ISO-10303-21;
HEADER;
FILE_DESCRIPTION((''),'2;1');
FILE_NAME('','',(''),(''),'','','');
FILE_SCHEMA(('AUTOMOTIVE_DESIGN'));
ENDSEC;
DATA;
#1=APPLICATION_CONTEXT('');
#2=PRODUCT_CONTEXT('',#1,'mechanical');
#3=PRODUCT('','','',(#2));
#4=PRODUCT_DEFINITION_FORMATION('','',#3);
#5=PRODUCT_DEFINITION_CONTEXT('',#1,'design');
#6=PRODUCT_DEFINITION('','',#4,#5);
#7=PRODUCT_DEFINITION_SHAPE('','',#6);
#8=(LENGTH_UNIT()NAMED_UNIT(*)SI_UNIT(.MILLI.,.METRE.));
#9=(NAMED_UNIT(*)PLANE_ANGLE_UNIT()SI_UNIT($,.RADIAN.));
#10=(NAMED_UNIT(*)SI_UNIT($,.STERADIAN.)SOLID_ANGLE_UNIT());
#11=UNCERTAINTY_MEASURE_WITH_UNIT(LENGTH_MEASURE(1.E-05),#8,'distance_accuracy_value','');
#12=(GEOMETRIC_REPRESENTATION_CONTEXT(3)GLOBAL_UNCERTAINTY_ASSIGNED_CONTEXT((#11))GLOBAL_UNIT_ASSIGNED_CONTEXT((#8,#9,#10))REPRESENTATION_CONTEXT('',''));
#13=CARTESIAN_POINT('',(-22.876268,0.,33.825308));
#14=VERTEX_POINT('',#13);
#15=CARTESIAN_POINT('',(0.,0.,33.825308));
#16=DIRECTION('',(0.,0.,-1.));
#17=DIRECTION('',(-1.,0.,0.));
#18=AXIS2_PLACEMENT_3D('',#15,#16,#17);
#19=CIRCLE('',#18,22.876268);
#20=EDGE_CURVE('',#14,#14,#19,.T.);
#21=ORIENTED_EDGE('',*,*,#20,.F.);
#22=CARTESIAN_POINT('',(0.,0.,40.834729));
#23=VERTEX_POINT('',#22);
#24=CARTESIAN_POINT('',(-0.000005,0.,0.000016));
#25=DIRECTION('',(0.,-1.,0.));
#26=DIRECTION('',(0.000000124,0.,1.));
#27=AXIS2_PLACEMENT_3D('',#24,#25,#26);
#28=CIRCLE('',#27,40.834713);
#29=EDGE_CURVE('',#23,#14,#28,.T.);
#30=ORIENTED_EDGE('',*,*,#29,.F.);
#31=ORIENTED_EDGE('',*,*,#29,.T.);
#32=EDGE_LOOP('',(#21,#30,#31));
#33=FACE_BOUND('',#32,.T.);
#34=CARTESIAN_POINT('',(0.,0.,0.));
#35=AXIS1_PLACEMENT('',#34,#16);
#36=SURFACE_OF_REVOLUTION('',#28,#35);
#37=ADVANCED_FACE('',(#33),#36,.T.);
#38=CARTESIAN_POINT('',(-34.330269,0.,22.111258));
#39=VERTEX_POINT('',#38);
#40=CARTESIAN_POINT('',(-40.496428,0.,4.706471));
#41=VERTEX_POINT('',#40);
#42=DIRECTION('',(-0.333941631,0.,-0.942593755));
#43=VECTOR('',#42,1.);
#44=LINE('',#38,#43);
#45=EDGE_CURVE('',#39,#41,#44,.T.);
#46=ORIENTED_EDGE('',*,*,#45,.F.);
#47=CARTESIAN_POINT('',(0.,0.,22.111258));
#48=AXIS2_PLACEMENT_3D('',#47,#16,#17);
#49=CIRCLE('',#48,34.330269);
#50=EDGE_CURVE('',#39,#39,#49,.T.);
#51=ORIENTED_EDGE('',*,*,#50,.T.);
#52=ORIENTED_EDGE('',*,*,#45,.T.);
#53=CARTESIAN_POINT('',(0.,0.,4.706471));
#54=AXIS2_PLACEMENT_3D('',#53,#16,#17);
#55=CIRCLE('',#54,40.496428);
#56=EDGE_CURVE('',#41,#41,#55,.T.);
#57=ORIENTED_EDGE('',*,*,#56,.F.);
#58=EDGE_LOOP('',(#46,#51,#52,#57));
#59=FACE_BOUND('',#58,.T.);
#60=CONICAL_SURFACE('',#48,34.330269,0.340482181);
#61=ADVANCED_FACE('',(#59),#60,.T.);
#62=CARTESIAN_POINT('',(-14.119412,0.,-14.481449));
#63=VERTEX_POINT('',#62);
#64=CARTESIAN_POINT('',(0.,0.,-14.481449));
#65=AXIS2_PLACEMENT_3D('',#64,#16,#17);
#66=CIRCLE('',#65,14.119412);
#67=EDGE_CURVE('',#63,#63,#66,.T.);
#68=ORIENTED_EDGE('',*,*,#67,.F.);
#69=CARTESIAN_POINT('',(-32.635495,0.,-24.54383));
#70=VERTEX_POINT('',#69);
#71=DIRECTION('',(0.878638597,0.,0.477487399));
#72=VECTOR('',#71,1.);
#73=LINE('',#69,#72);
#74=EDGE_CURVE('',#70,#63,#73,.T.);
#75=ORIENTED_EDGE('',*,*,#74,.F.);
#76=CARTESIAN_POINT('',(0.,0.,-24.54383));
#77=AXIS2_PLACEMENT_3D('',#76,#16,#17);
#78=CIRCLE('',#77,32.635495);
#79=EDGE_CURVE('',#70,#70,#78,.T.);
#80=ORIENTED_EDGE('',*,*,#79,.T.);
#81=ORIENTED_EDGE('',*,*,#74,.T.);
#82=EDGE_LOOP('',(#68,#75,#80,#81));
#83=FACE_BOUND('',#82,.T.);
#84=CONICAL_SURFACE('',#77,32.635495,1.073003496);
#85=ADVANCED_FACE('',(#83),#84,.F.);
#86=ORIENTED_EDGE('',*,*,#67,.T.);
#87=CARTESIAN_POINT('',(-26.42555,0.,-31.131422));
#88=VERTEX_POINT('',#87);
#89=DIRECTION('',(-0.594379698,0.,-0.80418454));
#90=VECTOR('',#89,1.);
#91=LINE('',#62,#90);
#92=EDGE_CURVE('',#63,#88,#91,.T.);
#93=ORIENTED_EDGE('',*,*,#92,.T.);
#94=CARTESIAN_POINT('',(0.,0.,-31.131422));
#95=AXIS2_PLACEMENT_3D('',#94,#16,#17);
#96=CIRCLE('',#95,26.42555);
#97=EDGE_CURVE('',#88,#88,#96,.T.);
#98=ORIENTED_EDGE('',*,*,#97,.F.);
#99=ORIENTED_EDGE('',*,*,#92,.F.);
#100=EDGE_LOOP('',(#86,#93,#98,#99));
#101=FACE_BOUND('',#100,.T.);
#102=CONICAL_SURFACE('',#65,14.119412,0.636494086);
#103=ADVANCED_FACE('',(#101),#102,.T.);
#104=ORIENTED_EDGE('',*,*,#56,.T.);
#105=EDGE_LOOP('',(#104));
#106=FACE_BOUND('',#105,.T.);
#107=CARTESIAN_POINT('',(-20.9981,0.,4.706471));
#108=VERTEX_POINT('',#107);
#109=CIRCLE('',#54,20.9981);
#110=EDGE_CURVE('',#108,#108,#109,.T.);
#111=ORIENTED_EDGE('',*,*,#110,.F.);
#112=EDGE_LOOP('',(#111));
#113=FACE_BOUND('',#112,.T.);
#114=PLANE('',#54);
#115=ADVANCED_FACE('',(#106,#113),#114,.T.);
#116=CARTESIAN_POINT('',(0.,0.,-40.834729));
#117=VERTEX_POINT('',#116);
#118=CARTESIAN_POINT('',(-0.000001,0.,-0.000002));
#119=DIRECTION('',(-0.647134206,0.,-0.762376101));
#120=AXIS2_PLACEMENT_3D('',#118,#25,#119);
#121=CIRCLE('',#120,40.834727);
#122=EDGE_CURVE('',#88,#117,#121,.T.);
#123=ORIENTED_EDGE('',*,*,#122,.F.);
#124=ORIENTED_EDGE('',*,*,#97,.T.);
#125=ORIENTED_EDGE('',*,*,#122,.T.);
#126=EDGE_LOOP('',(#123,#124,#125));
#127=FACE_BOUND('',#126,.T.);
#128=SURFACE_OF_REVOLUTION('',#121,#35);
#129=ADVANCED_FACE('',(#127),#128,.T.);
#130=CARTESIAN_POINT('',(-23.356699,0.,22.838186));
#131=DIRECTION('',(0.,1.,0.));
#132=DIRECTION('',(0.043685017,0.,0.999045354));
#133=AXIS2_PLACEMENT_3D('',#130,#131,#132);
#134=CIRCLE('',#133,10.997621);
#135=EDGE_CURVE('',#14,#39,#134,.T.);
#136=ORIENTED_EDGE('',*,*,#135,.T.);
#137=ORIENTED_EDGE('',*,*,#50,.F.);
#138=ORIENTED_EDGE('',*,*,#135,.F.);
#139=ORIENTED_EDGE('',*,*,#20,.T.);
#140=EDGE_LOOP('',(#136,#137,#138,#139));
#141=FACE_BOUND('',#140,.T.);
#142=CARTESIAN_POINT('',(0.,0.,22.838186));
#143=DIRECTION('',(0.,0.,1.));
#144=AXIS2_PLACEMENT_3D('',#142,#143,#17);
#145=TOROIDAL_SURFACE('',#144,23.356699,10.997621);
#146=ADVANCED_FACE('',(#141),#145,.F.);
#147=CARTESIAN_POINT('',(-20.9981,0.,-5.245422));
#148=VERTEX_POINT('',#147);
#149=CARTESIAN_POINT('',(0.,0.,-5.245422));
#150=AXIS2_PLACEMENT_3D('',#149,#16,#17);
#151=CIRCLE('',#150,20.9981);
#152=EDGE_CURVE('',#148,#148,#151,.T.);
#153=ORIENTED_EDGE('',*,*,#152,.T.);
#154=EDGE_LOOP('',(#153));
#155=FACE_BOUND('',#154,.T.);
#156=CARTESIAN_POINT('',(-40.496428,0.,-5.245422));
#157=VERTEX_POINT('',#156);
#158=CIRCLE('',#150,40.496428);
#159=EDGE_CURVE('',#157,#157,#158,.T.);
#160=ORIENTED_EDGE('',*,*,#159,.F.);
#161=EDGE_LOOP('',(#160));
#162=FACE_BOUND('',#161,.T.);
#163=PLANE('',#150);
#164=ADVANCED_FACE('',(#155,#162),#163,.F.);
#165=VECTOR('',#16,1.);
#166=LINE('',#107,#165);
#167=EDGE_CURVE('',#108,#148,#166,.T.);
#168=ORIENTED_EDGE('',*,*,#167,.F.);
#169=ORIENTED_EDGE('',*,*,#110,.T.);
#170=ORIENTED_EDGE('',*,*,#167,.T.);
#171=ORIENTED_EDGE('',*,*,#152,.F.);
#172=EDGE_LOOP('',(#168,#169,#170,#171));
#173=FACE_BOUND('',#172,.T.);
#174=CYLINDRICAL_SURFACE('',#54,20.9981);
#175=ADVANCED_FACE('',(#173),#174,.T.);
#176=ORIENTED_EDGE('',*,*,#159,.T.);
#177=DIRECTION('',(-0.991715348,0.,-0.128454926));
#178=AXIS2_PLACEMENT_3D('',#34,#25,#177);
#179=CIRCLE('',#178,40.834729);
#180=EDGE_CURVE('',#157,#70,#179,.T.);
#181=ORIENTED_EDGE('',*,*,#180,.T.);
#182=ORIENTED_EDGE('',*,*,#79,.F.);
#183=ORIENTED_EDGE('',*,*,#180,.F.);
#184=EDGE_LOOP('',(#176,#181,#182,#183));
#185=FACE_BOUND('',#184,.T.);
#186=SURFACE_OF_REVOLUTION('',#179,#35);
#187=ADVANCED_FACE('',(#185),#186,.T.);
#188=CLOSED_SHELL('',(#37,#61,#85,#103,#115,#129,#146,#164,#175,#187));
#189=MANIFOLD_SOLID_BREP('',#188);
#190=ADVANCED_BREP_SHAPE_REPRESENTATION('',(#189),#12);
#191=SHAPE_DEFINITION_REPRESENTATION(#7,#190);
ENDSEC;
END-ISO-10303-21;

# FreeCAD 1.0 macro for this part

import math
import FreeCAD as App
import Part
import Sketcher
from FreeCAD import Vector
Q = App.Units.Quantity

doc = App.newDocument("Part")
body = doc.addObject("PartDesign::Body", "Body")

# Sketch on XZ plane
sketch1 = body.newObject("Sketcher::SketchObject", "Sketch")
sketch1.AttachmentSupport = (doc.getObject("XZ_Plane"), [""])
sketch1.MapMode = "FlatFace"
sketch1.addGeometry([
    Part.LineSegment(Vector(-20.9981, -5.245422, 0), Vector(-40.496428, -5.245422, 0)),  # 0
    Part.ArcOfCircle(Part.Circle(Vector(0, 0, 0), Vector(0, 0, 1), 40.834729), math.radians(-172.619682), math.radians(-143.054661)),  # 1
    Part.LineSegment(Vector(-32.635495, -24.54383, 0), Vector(-14.119412, -14.481449, 0)),  # 2
    Part.LineSegment(Vector(-14.119412, -14.481449, 0), Vector(-26.42555, -31.131422, 0)),  # 3
    Part.ArcOfCircle(Part.Circle(Vector(-0.000001, -0.000002, 0), Vector(0, 0, 1), 40.834727), math.radians(-130.32588), math.radians(-89.999998)),  # 4
    Part.LineSegment(Vector(0, -40.834729, 0), Vector(0, 40.834729, 0)),  # 5
    Part.ArcOfCircle(Part.Circle(Vector(-0.000005, 0.000016, 0), Vector(0, 0, 1), 40.834713), math.radians(89.999993), math.radians(124.070743)),  # 6
    Part.ArcOfCircle(Part.Circle(Vector(-23.356699, 22.838186, 0), Vector(0, 0, 1), 10.997621), math.radians(-176.210061), math.radians(87.496236)),  # 7
    Part.LineSegment(Vector(-34.330269, 22.111258, 0), Vector(-40.496428, 4.706471, 0)),  # 8
    Part.LineSegment(Vector(-40.496428, 4.706471, 0), Vector(-20.9981, 4.706471, 0)),  # 9
    Part.LineSegment(Vector(-20.9981, 4.706471, 0), Vector(-20.9981, -5.245422, 0)),  # 10
], False)
sketch1.addConstraint([
    Sketcher.Constraint("Coincident", 0, 2, 1, 1),
    Sketcher.Constraint("Coincident", 1, 2, 2, 1),
    Sketcher.Constraint("Coincident", 2, 2, 3, 1),
    Sketcher.Constraint("Coincident", 3, 2, 4, 1),
    Sketcher.Constraint("Coincident", 4, 2, 5, 1),
    Sketcher.Constraint("Coincident", 5, 2, 6, 1),
    Sketcher.Constraint("Coincident", 6, 2, 7, 2),
    Sketcher.Constraint("Coincident", 7, 1, 8, 1),
    Sketcher.Constraint("Coincident", 8, 2, 9, 1),
    Sketcher.Constraint("Coincident", 9, 2, 10, 1),
    Sketcher.Constraint("Coincident", 10, 2, 0, 1),
    Sketcher.Constraint("Horizontal", 0),
    Sketcher.Constraint("Vertical", 5),
    Sketcher.Constraint("Horizontal", 9),
    Sketcher.Constraint("Vertical", 10),
    Sketcher.Constraint("Coincident", 1, 3, -1, 1),
    Sketcher.Constraint("Coincident", 4, 3, -1, 1),
    Sketcher.Constraint("Symmetric", 4, 2, 5, 2, -1, 1),
    Sketcher.Constraint("Vertical", 0, 2, 8, 2),
    Sketcher.Constraint("Radius", 1, Q("40.834729 mm")),
    Sketcher.Constraint("Radius", 7, Q("10.997621 mm")),
    Sketcher.Constraint("Radius", 4, Q("40.834727 mm")),
    Sketcher.Constraint("Radius", 6, Q("40.834713 mm")),
    Sketcher.Constraint("DistanceY", 3, 2, 0, 2, Q("25.886 mm")),
    Sketcher.Constraint("DistanceX", 7, 1, 6, 2, Q("11.454001 mm")),
    Sketcher.Constraint("DistanceX", 0, 2, 0, 1, Q("19.498328 mm")),
    Sketcher.Constraint("DistanceX", 7, 3, -1, 1, Q("23.356699 mm")),
    Sketcher.Constraint("DistanceX", 9, 2, -1, 1, Q("20.9981 mm")),
    Sketcher.Constraint("DistanceY", 4, 2, 1, 2, Q("16.290899 mm")),
    Sketcher.Constraint("DistanceY", 1, 2, 8, 2, Q("29.250301 mm")),
    Sketcher.Constraint("Distance", 3, Q("20.704169 mm")),
    Sketcher.Constraint("Distance", 8, Q("18.464781 mm")),
    Sketcher.Constraint("DistanceY", 2, 2, -1, 1, Q("14.481449 mm")),
    Sketcher.Constraint("DistanceY", -1, 1, 6, 2, Q("33.825308 mm")),
])
revolution = body.newObject("PartDesign::Revolution", "Revolution")
revolution.Profile = sketch1
revolution.ReferenceAxis = (sketch1, ["V_Axis"])
revolution.Angle = 360

doc.recompute()
